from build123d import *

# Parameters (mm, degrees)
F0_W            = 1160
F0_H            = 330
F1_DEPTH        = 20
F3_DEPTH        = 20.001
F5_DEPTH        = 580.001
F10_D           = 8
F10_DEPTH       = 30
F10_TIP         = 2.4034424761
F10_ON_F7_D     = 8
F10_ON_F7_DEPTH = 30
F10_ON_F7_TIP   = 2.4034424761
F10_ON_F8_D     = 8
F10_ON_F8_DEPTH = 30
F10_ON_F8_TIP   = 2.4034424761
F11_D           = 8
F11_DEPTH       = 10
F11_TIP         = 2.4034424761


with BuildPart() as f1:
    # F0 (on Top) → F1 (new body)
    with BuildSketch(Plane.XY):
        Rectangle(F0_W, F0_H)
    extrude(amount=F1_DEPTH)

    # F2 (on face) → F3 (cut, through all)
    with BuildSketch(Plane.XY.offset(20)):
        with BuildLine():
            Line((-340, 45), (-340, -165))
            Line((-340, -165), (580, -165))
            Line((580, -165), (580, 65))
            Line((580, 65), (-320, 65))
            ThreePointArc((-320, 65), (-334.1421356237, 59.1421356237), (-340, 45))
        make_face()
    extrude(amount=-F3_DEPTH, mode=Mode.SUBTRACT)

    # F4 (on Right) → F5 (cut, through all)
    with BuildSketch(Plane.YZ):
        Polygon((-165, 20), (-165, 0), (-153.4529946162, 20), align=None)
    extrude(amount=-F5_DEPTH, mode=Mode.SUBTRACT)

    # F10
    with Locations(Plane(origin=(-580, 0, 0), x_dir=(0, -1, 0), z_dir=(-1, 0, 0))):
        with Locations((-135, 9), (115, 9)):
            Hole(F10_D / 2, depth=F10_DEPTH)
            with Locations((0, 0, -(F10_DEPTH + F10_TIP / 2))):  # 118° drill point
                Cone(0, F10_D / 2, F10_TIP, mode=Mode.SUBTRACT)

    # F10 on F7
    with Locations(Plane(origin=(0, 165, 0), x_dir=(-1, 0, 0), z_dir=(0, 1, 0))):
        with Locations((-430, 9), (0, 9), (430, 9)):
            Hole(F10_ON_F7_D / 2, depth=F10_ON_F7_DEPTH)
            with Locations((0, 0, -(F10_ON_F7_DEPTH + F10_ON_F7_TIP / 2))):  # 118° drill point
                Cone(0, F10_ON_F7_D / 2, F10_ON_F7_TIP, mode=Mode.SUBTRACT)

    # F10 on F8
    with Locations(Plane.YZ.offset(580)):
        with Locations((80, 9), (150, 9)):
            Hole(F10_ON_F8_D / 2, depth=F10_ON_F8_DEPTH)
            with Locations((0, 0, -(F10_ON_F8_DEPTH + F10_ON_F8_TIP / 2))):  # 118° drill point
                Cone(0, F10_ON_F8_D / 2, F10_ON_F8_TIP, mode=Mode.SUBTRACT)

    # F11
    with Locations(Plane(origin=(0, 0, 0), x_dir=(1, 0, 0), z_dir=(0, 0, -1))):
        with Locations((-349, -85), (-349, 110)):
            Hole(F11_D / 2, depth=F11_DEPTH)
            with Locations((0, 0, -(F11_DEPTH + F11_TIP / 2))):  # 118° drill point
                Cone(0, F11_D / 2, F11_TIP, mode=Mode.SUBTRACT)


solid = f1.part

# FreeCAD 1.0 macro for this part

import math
import FreeCAD as App
import Part
import Sketcher

V = App.Vector
Q = App.Units.Quantity

doc = App.newDocument("Part")
body = doc.addObject("PartDesign::Body", "Body")

sketch1 = doc.addObject("Sketcher::SketchObject", "Sketch")
body.addObject(sketch1)
sketch1.AttachmentSupport = (doc.XY_Plane, [""])
sketch1.MapMode = "FlatFace"
sketch1.addGeometry(Part.LineSegment(V(-580, 165, 0), V(-580, -165, 0)), False)
sketch1.addGeometry(Part.LineSegment(V(-580, -165, 0), V(580, -165, 0)), False)
sketch1.addGeometry(Part.LineSegment(V(580, -165, 0), V(580, 165, 0)), False)
sketch1.addGeometry(Part.LineSegment(V(580, 165, 0), V(-580, 165, 0)), False)
sketch1.addConstraint(Sketcher.Constraint("Coincident", 0, 2, 1, 1))
sketch1.addConstraint(Sketcher.Constraint("Coincident", 1, 2, 2, 1))
sketch1.addConstraint(Sketcher.Constraint("Coincident", 2, 2, 3, 1))
sketch1.addConstraint(Sketcher.Constraint("Coincident", 3, 2, 0, 1))
sketch1.addConstraint(Sketcher.Constraint("Vertical", 0))
sketch1.addConstraint(Sketcher.Constraint("Horizontal", 1))
sketch1.addConstraint(Sketcher.Constraint("Vertical", 2))
sketch1.addConstraint(Sketcher.Constraint("Horizontal", 3))
sketch1.addConstraint(Sketcher.Constraint("Symmetric", 0, 2, 2, 2, -1, 1))
sketch1.addConstraint(Sketcher.Constraint("DistanceX", 1, 1, 1, 2, 1160.0))
sketch1.addConstraint(Sketcher.Constraint("DistanceY", 0, 2, 0, 1, 330.0))
pad1 = doc.addObject("PartDesign::Pad", "Pad")
body.addObject(pad1)
pad1.Profile = sketch1
pad1.Length = 20

sketch2 = doc.addObject("Sketcher::SketchObject", "Sketch001")
body.addObject(sketch2)
sketch2.AttachmentSupport = (doc.XY_Plane, [""])
sketch2.MapMode = "FlatFace"
sketch2.AttachmentOffset = App.Placement(V(0, 0, 20), App.Rotation())
sketch2.addGeometry(Part.LineSegment(V(-340, 45, 0), V(-340, -165, 0)), False)
sketch2.addGeometry(Part.LineSegment(V(-340, -165, 0), V(580, -165, 0)), False)
sketch2.addGeometry(Part.LineSegment(V(580, -165, 0), V(580, 65, 0)), False)
sketch2.addGeometry(Part.LineSegment(V(580, 65, 0), V(-320, 65, 0)), False)
sketch2.addGeometry(Part.ArcOfCircle(Part.Circle(V(-320, 45, 0), V(0, 0, 1), 20), math.radians(90), math.radians(180)), False)
sketch2.addConstraint(Sketcher.Constraint("Coincident", 0, 2, 1, 1))
sketch2.addConstraint(Sketcher.Constraint("Coincident", 1, 2, 2, 1))
sketch2.addConstraint(Sketcher.Constraint("Coincident", 2, 2, 3, 1))
sketch2.addConstraint(Sketcher.Constraint("Tangent", 3, 2, 4, 1))
sketch2.addConstraint(Sketcher.Constraint("Tangent", 4, 2, 0, 1))
sketch2.addConstraint(Sketcher.Constraint("Vertical", 0))
sketch2.addConstraint(Sketcher.Constraint("Horizontal", 1))
sketch2.addConstraint(Sketcher.Constraint("Vertical", 2))
sketch2.addConstraint(Sketcher.Constraint("Horizontal", 3))
sketch2.addConstraint(Sketcher.Constraint("Radius", 4, 20.0))
sketch2.addConstraint(Sketcher.Constraint("DistanceX", 1, 1, 1, 2, 920.0))
sketch2.addConstraint(Sketcher.Constraint("DistanceY", 0, 2, 0, 1, 210.0))
sketch2.addConstraint(Sketcher.Constraint("DistanceX", 4, 3, -1, 1, 320.0))
sketch2.addConstraint(Sketcher.Constraint("DistanceY", -1, 1, 4, 3, 45.0))
pocket1 = doc.addObject("PartDesign::Pocket", "Pocket")
body.addObject(pocket1)
pocket1.Profile = sketch2
pocket1.Type = "ThroughAll"

sketch3 = doc.addObject("Sketcher::SketchObject", "Sketch002")
body.addObject(sketch3)
sketch3.AttachmentSupport = (doc.YZ_Plane, [""])
sketch3.MapMode = "FlatFace"
sketch3.addGeometry(Part.LineSegment(V(-165, 20, 0), V(-165, 0, 0)), False)
sketch3.addGeometry(Part.LineSegment(V(-165, 0, 0), V(-153, 20, 0)), False)
sketch3.addGeometry(Part.LineSegment(V(-153, 20, 0), V(-165, 20, 0)), False)
sketch3.addConstraint(Sketcher.Constraint("Coincident", 0, 2, 1, 1))
sketch3.addConstraint(Sketcher.Constraint("Coincident", 1, 2, 2, 1))
sketch3.addConstraint(Sketcher.Constraint("Coincident", 2, 2, 0, 1))
sketch3.addConstraint(Sketcher.Constraint("Vertical", 0))
sketch3.addConstraint(Sketcher.Constraint("Horizontal", 2))
sketch3.addConstraint(Sketcher.Constraint("PointOnObject", 0, 2, -1))
sketch3.addConstraint(Sketcher.Constraint("DistanceY", 0, 2, 0, 1, 20.0))
sketch3.addConstraint(Sketcher.Constraint("Angle", 1, Q("60 deg")))
sketch3.addConstraint(Sketcher.Constraint("DistanceX", 0, 2, -1, 1, 165.0))
pocket2 = doc.addObject("PartDesign::Pocket", "Pocket001")
body.addObject(pocket2)
pocket2.Profile = sketch3
pocket2.Type = "ThroughAll"

sketch4 = doc.addObject("Sketcher::SketchObject", "Sketch003")
body.addObject(sketch4)
sketch4.AttachmentSupport = (doc.YZ_Plane, [""])
sketch4.MapMode = "FlatFace"
sketch4.AttachmentOffset = App.Placement(V(0, 0, -580), App.Rotation())
sketch4.addGeometry(Part.Circle(V(135, 9, 0), V(0, 0, 1), 4), False)
sketch4.addGeometry(Part.Circle(V(-115, 9, 0), V(0, 0, 1), 4), False)
sketch4.addConstraint(Sketcher.Constraint("Equal", 0, 1))
sketch4.addConstraint(Sketcher.Constraint("Horizontal", 0, 3, 1, 3))
sketch4.addConstraint(Sketcher.Constraint("Diameter", 0, 8.0))
sketch4.addConstraint(Sketcher.Constraint("DistanceX", -1, 1, 0, 3, 135.0))
sketch4.addConstraint(Sketcher.Constraint("DistanceY", -1, 1, 0, 3, 9.0))
sketch4.addConstraint(Sketcher.Constraint("DistanceX", 1, 3, -1, 1, 115.0))
doc.recompute()
hole = doc.addObject("PartDesign::Hole", "Hole")
body.addObject(hole)
hole.Profile = sketch4
hole.ThreadType = "None"
hole.Diameter = 8
hole.DepthType = "Dimension"
hole.Depth = 30
hole.DrillPoint = "Angled"
hole.DrillPointAngle = 118
hole.Reversed = True

sketch5 = doc.addObject("Sketcher::SketchObject", "Sketch004")
body.addObject(sketch5)
sketch5.AttachmentSupport = (doc.XZ_Plane, [""])
sketch5.MapMode = "FlatFace"
sketch5.AttachmentOffset = App.Placement(V(0, 0, -165), App.Rotation())
sketch5.addGeometry(Part.Circle(V(430, 9, 0), V(0, 0, 1), 4), False)
sketch5.addGeometry(Part.Circle(V(0, 9, 0), V(0, 0, 1), 4), False)
sketch5.addGeometry(Part.Circle(V(-430, 9, 0), V(0, 0, 1), 4), False)
sketch5.addConstraint(Sketcher.Constraint("Equal", 0, 1))
sketch5.addConstraint(Sketcher.Constraint("Equal", 1, 2))
sketch5.addConstraint(Sketcher.Constraint("Symmetric", 0, 3, 2, 3, -2))
sketch5.addConstraint(Sketcher.Constraint("PointOnObject", 1, 3, -2))
sketch5.addConstraint(Sketcher.Constraint("Horizontal", 0, 3, 1, 3))
sketch5.addConstraint(Sketcher.Constraint("Diameter", 0, 8.0))
sketch5.addConstraint(Sketcher.Constraint("DistanceX", -1, 1, 0, 3, 430.0))
sketch5.addConstraint(Sketcher.Constraint("DistanceY", -1, 1, 0, 3, 9.0))
doc.recompute()
hole2 = doc.addObject("PartDesign::Hole", "Hole001")
body.addObject(hole2)
hole2.Profile = sketch5
hole2.ThreadType = "None"
hole2.Diameter = 8
hole2.DepthType = "Dimension"
hole2.Depth = 30
hole2.DrillPoint = "Angled"
hole2.DrillPointAngle = 118
hole2.Reversed = True

sketch6 = doc.addObject("Sketcher::SketchObject", "Sketch005")
body.addObject(sketch6)
sketch6.AttachmentSupport = (doc.YZ_Plane, [""])
sketch6.MapMode = "FlatFace"
sketch6.AttachmentOffset = App.Placement(V(0, 0, 580), App.Rotation())
sketch6.addGeometry(Part.Circle(V(80, 9, 0), V(0, 0, 1), 4), False)
sketch6.addGeometry(Part.Circle(V(150, 9, 0), V(0, 0, 1), 4), False)
sketch6.addConstraint(Sketcher.Constraint("Equal", 0, 1))
sketch6.addConstraint(Sketcher.Constraint("Horizontal", 0, 3, 1, 3))
sketch6.addConstraint(Sketcher.Constraint("Diameter", 0, 8.0))
sketch6.addConstraint(Sketcher.Constraint("DistanceX", -1, 1, 0, 3, 80.0))
sketch6.addConstraint(Sketcher.Constraint("DistanceY", -1, 1, 0, 3, 9.0))
sketch6.addConstraint(Sketcher.Constraint("DistanceX", -1, 1, 1, 3, 150.0))
doc.recompute()
hole3 = doc.addObject("PartDesign::Hole", "Hole002")
body.addObject(hole3)
hole3.Profile = sketch6
hole3.ThreadType = "None"
hole3.Diameter = 8
hole3.DepthType = "Dimension"
hole3.Depth = 30
hole3.DrillPoint = "Angled"
hole3.DrillPointAngle = 118

sketch7 = doc.addObject("Sketcher::SketchObject", "Sketch006")
body.addObject(sketch7)
sketch7.AttachmentSupport = (doc.XY_Plane, [""])
sketch7.MapMode = "FlatFace"
sketch7.addGeometry(Part.Circle(V(-349, 85, 0), V(0, 0, 1), 4), False)
sketch7.addGeometry(Part.Circle(V(-349, -110, 0), V(0, 0, 1), 4), False)
sketch7.addConstraint(Sketcher.Constraint("Equal", 0, 1))
sketch7.addConstraint(Sketcher.Constraint("Vertical", 0, 3, 1, 3))
sketch7.addConstraint(Sketcher.Constraint("Diameter", 0, 8.0))
sketch7.addConstraint(Sketcher.Constraint("DistanceX", 0, 3, -1, 1, 349.0))
sketch7.addConstraint(Sketcher.Constraint("DistanceY", -1, 1, 0, 3, 85.0))
sketch7.addConstraint(Sketcher.Constraint("DistanceY", 1, 3, -1, 1, 110.0))
doc.recompute()
hole4 = doc.addObject("PartDesign::Hole", "Hole003")
body.addObject(hole4)
hole4.Profile = sketch7
hole4.ThreadType = "None"
hole4.Diameter = 8
hole4.DepthType = "Dimension"
hole4.Depth = 10
hole4.DrillPoint = "Angled"
hole4.DrillPointAngle = 118
hole4.Reversed = True

doc.recompute()
